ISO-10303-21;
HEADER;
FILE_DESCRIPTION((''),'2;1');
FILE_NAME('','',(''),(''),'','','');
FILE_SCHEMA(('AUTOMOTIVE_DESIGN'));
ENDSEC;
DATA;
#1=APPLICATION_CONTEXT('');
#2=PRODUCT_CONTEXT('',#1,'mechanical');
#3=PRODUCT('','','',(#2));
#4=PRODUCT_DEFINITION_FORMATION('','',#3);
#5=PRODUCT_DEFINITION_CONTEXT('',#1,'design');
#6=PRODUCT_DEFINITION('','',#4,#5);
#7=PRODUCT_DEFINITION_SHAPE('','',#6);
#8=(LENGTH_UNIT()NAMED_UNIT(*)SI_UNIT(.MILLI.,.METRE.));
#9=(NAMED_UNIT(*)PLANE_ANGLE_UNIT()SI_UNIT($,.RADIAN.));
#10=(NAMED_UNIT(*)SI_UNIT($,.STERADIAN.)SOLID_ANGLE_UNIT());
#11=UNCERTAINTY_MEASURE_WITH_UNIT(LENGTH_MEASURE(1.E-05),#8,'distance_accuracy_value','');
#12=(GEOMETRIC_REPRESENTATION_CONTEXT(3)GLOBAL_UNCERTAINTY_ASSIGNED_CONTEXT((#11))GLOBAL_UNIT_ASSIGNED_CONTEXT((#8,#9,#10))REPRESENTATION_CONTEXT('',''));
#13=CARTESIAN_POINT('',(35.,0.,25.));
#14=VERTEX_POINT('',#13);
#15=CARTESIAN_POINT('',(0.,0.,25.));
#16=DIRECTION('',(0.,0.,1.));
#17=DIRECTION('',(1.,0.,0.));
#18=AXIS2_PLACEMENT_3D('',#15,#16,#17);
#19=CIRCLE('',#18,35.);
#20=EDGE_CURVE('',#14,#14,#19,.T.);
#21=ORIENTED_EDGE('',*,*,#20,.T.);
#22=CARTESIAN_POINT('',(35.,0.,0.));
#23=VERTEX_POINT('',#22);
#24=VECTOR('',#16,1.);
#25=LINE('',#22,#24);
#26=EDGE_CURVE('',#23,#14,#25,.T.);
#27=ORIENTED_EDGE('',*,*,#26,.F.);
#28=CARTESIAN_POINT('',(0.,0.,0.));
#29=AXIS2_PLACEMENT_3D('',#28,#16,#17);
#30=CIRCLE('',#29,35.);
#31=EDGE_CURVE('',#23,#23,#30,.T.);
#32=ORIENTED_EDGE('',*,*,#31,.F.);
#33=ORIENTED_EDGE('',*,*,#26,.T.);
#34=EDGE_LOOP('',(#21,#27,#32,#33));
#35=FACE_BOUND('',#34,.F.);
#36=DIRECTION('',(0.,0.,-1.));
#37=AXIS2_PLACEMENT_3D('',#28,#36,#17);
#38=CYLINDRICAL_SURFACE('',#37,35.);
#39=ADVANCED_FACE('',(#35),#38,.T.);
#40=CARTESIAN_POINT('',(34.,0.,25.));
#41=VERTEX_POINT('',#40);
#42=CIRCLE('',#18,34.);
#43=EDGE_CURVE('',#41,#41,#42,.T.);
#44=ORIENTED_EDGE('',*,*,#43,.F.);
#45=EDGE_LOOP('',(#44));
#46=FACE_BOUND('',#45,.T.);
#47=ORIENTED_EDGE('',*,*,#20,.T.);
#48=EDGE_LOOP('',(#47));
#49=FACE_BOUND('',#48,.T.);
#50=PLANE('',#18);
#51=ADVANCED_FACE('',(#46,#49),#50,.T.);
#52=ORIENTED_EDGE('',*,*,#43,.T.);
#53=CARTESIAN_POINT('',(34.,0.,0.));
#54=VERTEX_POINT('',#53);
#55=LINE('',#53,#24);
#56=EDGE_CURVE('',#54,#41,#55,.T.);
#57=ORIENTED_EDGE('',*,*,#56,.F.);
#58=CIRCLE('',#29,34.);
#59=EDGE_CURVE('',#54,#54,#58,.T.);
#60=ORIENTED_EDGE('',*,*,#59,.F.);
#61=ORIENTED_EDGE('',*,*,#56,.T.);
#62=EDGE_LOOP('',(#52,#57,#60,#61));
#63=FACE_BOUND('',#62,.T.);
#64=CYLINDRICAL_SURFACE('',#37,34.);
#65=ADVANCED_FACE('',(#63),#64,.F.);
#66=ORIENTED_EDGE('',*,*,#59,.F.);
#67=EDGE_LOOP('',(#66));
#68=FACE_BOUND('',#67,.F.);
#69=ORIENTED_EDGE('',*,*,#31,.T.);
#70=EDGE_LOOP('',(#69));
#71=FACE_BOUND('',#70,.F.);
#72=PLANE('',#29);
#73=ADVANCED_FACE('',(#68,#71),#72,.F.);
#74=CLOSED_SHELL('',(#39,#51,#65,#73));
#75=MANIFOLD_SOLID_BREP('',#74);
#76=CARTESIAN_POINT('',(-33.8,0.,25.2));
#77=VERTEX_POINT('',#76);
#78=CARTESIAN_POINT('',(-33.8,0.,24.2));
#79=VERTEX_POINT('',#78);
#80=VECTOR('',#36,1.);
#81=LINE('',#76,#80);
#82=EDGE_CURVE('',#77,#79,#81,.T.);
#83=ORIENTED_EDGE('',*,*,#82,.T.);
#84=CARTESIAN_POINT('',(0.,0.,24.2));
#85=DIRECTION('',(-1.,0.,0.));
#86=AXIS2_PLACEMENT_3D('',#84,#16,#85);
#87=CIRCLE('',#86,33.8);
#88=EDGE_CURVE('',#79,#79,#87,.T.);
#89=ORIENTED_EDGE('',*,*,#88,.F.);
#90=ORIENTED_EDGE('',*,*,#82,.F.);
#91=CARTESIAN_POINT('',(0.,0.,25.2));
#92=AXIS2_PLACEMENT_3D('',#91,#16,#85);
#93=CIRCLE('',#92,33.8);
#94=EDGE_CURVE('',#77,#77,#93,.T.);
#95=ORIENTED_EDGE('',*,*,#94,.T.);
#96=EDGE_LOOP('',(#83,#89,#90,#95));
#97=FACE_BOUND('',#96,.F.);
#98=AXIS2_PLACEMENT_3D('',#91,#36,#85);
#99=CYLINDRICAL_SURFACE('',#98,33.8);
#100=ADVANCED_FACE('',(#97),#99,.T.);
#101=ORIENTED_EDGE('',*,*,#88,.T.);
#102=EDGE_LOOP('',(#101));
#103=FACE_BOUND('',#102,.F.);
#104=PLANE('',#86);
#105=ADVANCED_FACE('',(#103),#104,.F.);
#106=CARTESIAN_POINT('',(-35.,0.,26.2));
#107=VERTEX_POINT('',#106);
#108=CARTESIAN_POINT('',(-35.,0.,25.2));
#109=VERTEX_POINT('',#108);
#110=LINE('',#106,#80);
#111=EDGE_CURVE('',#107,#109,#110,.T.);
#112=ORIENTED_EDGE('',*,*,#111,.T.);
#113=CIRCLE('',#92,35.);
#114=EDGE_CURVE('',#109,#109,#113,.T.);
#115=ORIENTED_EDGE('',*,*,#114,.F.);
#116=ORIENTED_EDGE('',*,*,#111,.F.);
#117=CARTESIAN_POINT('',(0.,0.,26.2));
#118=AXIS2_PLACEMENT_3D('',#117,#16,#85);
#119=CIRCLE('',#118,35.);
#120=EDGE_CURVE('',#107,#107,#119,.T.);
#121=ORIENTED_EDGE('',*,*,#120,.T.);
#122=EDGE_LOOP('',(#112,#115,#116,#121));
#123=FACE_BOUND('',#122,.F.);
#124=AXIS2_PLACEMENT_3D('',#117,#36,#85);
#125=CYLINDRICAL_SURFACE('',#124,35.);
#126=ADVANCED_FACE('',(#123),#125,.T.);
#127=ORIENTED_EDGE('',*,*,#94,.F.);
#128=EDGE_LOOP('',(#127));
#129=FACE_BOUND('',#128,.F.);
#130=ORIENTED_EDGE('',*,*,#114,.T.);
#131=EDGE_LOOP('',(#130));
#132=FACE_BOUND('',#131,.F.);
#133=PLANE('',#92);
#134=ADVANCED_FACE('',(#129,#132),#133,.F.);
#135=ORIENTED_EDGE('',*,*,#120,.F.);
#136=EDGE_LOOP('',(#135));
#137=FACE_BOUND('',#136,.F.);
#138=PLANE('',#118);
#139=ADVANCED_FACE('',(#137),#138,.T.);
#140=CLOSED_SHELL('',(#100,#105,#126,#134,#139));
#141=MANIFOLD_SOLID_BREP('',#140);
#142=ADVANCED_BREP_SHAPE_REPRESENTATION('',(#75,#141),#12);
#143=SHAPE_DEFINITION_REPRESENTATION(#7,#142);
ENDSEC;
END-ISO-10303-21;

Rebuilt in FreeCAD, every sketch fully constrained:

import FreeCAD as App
import Part
import Sketcher

doc = App.newDocument("Part")
body = doc.addObject("PartDesign::Body", "Body")

# Sketch on XY plane
sketch1 = body.newObject("Sketcher::SketchObject", "Sketch")
sketch1.AttachmentSupport = (doc.getObject("XY_Plane"), [""])
sketch1.MapMode = "FlatFace"
sketch1.addGeometry(Part.Circle(App.Vector(0, 0, 0), App.Vector(0, 0, 1), 35), False)
sketch1.addGeometry(Part.Circle(App.Vector(0, 0, 0), App.Vector(0, 0, 1), 34), False)
sketch1.addConstraint(Sketcher.Constraint("Coincident", 0, 3, -1, 1))
sketch1.addConstraint(Sketcher.Constraint("Coincident", 1, 3, -1, 1))
sketch1.addConstraint(Sketcher.Constraint("Diameter", 0, 70.0))
sketch1.addConstraint(Sketcher.Constraint("Diameter", 1, 68.0))
pad1 = body.newObject("PartDesign::Pad", "Pad")
pad1.Profile = sketch1
pad1.Length = 25
body2 = doc.addObject("PartDesign::Body", "Body001")

# Sketch on XZ plane
sketch2 = body2.newObject("Sketcher::SketchObject", "Sketch001")
sketch2.AttachmentSupport = (doc.getObject("XZ_Plane001"), [""])
sketch2.MapMode = "FlatFace"
sketch2.addGeometry(Part.LineSegment(App.Vector(-35, 26.2, 0), App.Vector(-35, 25.2, 0)), False)
sketch2.addGeometry(Part.LineSegment(App.Vector(-35, 25.2, 0), App.Vector(-33.8, 25.2, 0)), False)
sketch2.addGeometry(Part.LineSegment(App.Vector(-33.8, 25.2, 0), App.Vector(-33.8, 24.2, 0)), False)
sketch2.addGeometry(Part.LineSegment(App.Vector(-33.8, 24.2, 0), App.Vector(0, 24.2, 0)), False)
sketch2.addGeometry(Part.LineSegment(App.Vector(0, 24.2, 0), App.Vector(0, 26.2, 0)), False)
sketch2.addGeometry(Part.LineSegment(App.Vector(0, 26.2, 0), App.Vector(-35, 26.2, 0)), False)
sketch2.addConstraint(Sketcher.Constraint("Coincident", 0, 2, 1, 1))
sketch2.addConstraint(Sketcher.Constraint("Coincident", 1, 2, 2, 1))
sketch2.addConstraint(Sketcher.Constraint("Coincident", 2, 2, 3, 1))
sketch2.addConstraint(Sketcher.Constraint("Coincident", 3, 2, 4, 1))
sketch2.addConstraint(Sketcher.Constraint("Coincident", 4, 2, 5, 1))
sketch2.addConstraint(Sketcher.Constraint("Coincident", 5, 2, 0, 1))
sketch2.addConstraint(Sketcher.Constraint("Vertical", 0))
sketch2.addConstraint(Sketcher.Constraint("Horizontal", 1))
sketch2.addConstraint(Sketcher.Constraint("Vertical", 2))
sketch2.addConstraint(Sketcher.Constraint("Horizontal", 3))
sketch2.addConstraint(Sketcher.Constraint("Vertical", 4))
sketch2.addConstraint(Sketcher.Constraint("Horizontal", 5))
sketch2.addConstraint(Sketcher.Constraint("PointOnObject", 3, 2, -2))
sketch2.addConstraint(Sketcher.Constraint("Equal", 0, 2))
sketch2.addConstraint(Sketcher.Constraint("DistanceX", 5, 2, 5, 1, 35.0))
sketch2.addConstraint(Sketcher.Constraint("DistanceY", 0, 2, 0, 1, 1.0))
sketch2.addConstraint(Sketcher.Constraint("DistanceX", 1, 1, 1, 2, 1.2))
sketch2.addConstraint(Sketcher.Constraint("DistanceY", -1, 1, 0, 2, 25.2))
revolution = body2.newObject("PartDesign::Revolution", "Revolution")
revolution.Profile = sketch2
revolution.ReferenceAxis = (sketch2, ["V_Axis"])
revolution.Angle = 360

doc.recompute()
